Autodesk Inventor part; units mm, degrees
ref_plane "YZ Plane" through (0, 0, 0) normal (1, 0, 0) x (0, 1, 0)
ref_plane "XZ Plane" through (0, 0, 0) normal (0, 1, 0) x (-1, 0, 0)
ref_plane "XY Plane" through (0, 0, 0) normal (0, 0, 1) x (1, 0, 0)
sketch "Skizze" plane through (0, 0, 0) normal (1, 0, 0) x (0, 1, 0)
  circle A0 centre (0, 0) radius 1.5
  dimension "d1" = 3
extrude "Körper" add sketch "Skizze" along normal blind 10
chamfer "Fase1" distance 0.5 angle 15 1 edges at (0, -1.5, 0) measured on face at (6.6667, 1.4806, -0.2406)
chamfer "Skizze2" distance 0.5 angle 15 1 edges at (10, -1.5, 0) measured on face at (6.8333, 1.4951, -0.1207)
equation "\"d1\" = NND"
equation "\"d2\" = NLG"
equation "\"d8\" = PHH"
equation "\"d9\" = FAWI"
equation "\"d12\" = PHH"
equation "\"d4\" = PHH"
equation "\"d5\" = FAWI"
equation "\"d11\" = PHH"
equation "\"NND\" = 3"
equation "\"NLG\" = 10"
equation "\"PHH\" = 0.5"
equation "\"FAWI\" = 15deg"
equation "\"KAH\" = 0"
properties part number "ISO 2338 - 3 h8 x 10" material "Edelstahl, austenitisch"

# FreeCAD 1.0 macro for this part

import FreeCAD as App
import Part
import Sketcher


def edges_at(feature, points):
    """Names of the edges that pass closest to the given points."""
    edges = feature.Shape.Edges
    near = lambda p: min(range(len(edges)), key=lambda i: edges[i].distToShape(Part.Vertex(*p))[0])
    return sorted({f"Edge{near(p) + 1}" for p in points})

doc = App.newDocument("Part")
body = doc.addObject("PartDesign::Body", "Body")

# Sketch on YZ plane
sketch1 = body.newObject("Sketcher::SketchObject", "Sketch")
sketch1.AttachmentSupport = (doc.getObject("YZ_Plane"), [""])
sketch1.MapMode = "FlatFace"
sketch1.addGeometry(Part.Circle(App.Vector(0, 0, 0), App.Vector(0, 0, 1), 1.5), False)
sketch1.addConstraint([
    Sketcher.Constraint("Coincident", 0, 3, -1, 1),
    Sketcher.Constraint("Diameter", 0, 3.0),
])
pad1 = body.newObject("PartDesign::Pad", "Pad")
pad1.Profile = sketch1
pad1.Length = 10
doc.recompute()

chamfer = body.newObject("PartDesign::Chamfer", "Chamfer")
chamfer.Base = (pad1, edges_at(pad1, [(0, -1.5, 0)]))
chamfer.ChamferType = "Distance and Angle"
chamfer.Size = 0.5
chamfer.Angle = 15
doc.recompute()

chamfer2 = body.newObject("PartDesign::Chamfer", "Chamfer001")
chamfer2.Base = (chamfer, edges_at(chamfer, [(10, -1.5, 0)]))
chamfer2.ChamferType = "Distance and Angle"
chamfer2.Size = 0.5
chamfer2.Angle = 15

doc.recompute()
